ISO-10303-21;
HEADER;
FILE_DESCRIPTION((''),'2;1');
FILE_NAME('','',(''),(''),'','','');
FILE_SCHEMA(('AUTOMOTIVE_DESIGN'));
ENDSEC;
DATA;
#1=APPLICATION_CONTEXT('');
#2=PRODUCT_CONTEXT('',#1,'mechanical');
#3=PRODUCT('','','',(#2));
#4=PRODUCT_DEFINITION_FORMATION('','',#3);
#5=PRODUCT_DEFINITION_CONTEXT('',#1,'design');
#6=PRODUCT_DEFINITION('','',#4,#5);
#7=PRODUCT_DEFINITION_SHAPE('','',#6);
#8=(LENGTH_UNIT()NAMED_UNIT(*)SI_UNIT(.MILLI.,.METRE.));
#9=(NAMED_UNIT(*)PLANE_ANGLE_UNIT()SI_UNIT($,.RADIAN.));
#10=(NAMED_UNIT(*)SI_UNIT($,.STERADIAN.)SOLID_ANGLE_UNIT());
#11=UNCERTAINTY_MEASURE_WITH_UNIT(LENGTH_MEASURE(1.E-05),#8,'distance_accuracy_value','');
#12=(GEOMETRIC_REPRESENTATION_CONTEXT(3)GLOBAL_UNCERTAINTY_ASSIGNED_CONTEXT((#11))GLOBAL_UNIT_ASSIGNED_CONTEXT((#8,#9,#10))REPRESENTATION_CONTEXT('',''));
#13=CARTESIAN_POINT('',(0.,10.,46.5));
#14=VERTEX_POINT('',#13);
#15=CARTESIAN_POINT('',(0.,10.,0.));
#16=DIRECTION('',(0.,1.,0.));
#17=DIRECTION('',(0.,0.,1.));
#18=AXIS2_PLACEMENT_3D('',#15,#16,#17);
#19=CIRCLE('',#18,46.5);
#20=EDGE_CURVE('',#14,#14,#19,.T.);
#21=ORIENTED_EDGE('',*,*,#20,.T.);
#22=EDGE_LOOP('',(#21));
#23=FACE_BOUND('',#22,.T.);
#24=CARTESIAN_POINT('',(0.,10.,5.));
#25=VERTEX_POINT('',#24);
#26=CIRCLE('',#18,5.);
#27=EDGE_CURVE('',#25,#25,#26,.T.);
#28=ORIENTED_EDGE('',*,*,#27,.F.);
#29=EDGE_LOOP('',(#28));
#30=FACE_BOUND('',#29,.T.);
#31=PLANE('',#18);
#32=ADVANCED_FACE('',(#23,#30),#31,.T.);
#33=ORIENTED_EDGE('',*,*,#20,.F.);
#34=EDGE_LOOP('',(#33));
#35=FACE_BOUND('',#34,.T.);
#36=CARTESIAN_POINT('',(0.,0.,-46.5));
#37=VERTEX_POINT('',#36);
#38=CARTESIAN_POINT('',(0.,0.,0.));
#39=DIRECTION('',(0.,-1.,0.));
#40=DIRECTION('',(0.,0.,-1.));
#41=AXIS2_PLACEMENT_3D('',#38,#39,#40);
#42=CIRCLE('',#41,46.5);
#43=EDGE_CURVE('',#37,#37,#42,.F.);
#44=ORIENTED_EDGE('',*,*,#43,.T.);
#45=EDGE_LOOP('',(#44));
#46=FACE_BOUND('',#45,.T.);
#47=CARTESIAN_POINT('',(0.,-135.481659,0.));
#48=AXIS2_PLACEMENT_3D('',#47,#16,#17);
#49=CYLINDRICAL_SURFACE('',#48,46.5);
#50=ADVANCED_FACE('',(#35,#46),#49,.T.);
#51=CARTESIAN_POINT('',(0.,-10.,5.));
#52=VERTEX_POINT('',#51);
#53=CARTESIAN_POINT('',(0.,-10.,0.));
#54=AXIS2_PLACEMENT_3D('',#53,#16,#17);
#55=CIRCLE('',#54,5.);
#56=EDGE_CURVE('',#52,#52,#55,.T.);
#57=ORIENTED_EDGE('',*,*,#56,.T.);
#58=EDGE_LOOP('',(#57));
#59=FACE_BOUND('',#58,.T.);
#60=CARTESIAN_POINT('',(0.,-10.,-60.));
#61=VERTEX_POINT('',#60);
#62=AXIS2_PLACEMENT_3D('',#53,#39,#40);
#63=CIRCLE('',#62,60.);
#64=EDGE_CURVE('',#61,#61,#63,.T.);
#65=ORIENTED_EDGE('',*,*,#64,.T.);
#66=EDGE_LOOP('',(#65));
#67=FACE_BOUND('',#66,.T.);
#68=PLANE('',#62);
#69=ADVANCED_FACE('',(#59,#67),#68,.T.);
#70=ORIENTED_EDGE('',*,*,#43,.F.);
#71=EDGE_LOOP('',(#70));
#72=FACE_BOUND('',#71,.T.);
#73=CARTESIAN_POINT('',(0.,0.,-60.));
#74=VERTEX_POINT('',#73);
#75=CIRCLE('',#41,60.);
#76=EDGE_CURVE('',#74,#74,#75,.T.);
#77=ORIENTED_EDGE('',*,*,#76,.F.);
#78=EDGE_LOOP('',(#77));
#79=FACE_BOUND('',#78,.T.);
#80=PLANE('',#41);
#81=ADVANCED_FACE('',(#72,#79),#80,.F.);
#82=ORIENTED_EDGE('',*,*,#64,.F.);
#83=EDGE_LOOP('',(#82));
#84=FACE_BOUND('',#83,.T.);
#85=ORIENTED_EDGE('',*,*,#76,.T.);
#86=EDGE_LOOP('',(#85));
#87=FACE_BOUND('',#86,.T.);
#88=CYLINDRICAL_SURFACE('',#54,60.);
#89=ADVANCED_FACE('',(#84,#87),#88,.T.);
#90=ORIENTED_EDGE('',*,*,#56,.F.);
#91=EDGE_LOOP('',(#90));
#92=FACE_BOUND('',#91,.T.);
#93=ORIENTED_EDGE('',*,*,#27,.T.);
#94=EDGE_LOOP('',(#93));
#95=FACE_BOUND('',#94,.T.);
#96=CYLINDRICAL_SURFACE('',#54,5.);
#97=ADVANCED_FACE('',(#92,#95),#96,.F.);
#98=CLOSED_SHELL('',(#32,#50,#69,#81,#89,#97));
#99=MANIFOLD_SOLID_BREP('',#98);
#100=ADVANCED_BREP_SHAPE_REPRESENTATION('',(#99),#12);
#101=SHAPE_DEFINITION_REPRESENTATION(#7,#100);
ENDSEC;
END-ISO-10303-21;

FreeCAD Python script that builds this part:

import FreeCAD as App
import Part
import Sketcher

V = App.Vector
Q = App.Units.Quantity

doc = App.newDocument("Part")
body = doc.addObject("PartDesign::Body", "Body")

# Sketch on XZ plane
sketch1 = body.newObject("Sketcher::SketchObject", "Sketch")
sketch1.AttachmentSupport = (doc.getObject("XZ_Plane"), [""])
sketch1.MapMode = "FlatFace"
sketch1.addGeometry(Part.Circle(V(0, 0, 0), V(0, 0, 1), 48), False)
sketch1.addConstraint([
    Sketcher.Constraint("Coincident", 0, 3, -1, 1),
    Sketcher.Constraint("Diameter", 0, Q("95.8 mm")),
])
pad1 = body.newObject("PartDesign::Pad", "Pad")
pad1.Profile = sketch1
pad1.Length = 10
pad1.Reversed = True

# Sketch on XZ plane
sketch2 = body.newObject("Sketcher::SketchObject", "Sketch001")
sketch2.AttachmentSupport = (doc.getObject("XZ_Plane"), [""])
sketch2.MapMode = "FlatFace"
sketch2.addGeometry(Part.Circle(V(0, 0, 0), V(0, 0, 1), 60), False)
sketch2.addConstraint([
    Sketcher.Constraint("Coincident", 0, 3, -1, 1),
    Sketcher.Constraint("Diameter", 0, Q("120 mm")),
])
pad2 = body.newObject("PartDesign::Pad", "Pad001")
pad2.Profile = sketch2
pad2.Length = 10

# Sketch on XZ plane
sketch3 = body.newObject("Sketcher::SketchObject", "Sketch002")
sketch3.AttachmentSupport = (doc.getObject("XZ_Plane"), [""])
sketch3.MapMode = "FlatFace"
sketch3.addGeometry([
    Part.Circle(V(0, 0, 0), V(0, 0, 1), 48),
    Part.Circle(V(0, 0, 0), V(0, 0, 1), 46),
], False)
sketch3.addConstraint([
    Sketcher.Constraint("Coincident", 0, 3, -1, 1),
    Sketcher.Constraint("Coincident", 1, 3, -1, 1),
    Sketcher.Constraint("Diameter", 1, Q("93 mm")),
    Sketcher.Constraint("Diameter", 0, Q("95.8 mm")),
])
pocket1 = body.newObject("PartDesign::Pocket", "Pocket")
pocket1.Profile = sketch3
pocket1.Length = 10

# Sketch on XZ plane
sketch4 = body.newObject("Sketcher::SketchObject", "Sketch003")
sketch4.AttachmentSupport = (doc.getObject("XZ_Plane"), [""])
sketch4.MapMode = "FlatFace"
sketch4.AttachmentOffset = App.Placement(V(0, 0, -10), App.Rotation())
sketch4.addGeometry(Part.Circle(V(0, 0, 0), V(0, 0, 1), 5), False)
sketch4.addConstraint([
    Sketcher.Constraint("Coincident", 0, 3, -1, 1),
    Sketcher.Constraint("Diameter", 0, Q("10 mm")),
])
pocket2 = body.newObject("PartDesign::Pocket", "Pocket001")
pocket2.Profile = sketch4
pocket2.Type = "ThroughAll"
pocket2.Reversed = True

doc.recompute()
